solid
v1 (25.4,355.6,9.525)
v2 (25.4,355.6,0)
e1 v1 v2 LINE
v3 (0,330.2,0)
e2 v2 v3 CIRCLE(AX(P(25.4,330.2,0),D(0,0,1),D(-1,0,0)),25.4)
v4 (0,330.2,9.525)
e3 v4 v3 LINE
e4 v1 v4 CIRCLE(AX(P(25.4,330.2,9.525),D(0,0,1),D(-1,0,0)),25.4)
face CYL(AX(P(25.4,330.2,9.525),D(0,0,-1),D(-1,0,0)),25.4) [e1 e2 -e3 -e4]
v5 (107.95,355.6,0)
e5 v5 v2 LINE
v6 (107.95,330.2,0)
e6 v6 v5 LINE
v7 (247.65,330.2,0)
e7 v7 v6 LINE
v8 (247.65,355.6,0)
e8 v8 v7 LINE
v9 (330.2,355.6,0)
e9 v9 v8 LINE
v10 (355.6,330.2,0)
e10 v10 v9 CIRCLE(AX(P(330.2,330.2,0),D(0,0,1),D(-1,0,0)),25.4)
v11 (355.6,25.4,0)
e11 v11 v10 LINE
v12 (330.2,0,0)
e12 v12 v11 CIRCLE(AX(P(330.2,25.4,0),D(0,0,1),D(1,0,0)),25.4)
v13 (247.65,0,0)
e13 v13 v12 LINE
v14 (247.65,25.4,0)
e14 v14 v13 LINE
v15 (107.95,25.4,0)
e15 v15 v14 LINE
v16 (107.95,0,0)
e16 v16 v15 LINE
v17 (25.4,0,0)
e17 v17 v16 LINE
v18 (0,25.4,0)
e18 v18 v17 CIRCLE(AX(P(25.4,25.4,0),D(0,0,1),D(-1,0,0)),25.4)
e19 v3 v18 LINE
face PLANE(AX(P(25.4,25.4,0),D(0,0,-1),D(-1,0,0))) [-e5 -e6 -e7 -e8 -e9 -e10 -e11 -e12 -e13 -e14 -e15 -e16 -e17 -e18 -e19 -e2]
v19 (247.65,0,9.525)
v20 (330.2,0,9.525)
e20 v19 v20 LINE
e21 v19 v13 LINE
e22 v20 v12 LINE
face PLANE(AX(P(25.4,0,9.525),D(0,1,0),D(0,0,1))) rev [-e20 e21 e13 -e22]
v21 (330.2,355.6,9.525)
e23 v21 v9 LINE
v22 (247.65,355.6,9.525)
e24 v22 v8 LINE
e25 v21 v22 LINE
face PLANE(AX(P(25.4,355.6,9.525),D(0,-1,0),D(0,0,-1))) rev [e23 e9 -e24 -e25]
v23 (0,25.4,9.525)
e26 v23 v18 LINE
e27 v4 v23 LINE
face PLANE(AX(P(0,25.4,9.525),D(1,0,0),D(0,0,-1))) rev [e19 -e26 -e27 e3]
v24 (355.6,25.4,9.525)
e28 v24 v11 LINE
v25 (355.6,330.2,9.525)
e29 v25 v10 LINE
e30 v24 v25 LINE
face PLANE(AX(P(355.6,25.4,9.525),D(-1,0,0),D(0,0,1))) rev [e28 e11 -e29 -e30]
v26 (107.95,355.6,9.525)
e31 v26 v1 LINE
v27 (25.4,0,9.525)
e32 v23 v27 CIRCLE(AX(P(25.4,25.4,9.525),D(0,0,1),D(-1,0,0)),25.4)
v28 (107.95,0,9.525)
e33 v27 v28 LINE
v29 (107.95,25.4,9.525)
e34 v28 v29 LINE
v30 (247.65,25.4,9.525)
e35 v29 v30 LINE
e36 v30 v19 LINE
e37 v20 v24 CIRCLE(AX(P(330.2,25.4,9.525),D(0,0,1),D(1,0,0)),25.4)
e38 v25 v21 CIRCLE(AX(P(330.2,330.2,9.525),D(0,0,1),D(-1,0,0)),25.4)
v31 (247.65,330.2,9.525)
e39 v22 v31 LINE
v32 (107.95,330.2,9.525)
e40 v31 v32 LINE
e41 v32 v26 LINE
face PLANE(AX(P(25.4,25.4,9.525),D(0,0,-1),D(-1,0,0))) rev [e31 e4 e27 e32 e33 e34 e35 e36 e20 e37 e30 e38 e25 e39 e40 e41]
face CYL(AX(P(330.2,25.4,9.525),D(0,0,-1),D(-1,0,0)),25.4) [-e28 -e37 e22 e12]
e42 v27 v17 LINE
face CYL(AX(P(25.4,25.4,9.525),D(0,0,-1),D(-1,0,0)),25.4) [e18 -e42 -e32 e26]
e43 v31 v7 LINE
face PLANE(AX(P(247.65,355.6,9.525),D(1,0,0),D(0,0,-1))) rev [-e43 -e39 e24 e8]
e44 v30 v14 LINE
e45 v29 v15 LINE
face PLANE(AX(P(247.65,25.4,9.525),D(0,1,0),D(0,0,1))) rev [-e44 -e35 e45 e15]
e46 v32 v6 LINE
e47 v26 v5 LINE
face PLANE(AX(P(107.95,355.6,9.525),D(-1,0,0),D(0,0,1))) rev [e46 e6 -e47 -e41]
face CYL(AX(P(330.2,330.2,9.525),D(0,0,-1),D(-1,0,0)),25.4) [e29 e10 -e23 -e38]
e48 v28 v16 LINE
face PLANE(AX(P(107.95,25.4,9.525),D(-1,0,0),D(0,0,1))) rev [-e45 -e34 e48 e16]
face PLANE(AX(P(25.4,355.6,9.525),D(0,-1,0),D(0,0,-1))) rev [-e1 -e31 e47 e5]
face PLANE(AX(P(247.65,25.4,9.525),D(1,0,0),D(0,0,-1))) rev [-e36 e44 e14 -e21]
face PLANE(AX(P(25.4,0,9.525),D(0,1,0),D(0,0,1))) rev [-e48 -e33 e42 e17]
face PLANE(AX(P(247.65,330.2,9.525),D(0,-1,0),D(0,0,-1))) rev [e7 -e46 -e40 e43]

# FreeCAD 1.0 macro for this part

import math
import FreeCAD as App
import Part
import Sketcher
from FreeCAD import Vector
Q = App.Units.Quantity

doc = App.newDocument("Part")
params = doc.addObject("Spreadsheet::Sheet", "Params")
for row, (alias, value) in enumerate([
    ("sketch1_radius", "1 in"),
    ("sketch1_width", "12 in"),
    ("pad1_length", "0.375 in"),
    ("sketch2_height", "1 in"),
    ("sketch2_width", "5.5 in"),
], start=1):
    params.set(f"A{row}", alias)
    params.set(f"B{row}", "=" + value)
    params.setAlias(f"B{row}", alias)

body = doc.addObject("PartDesign::Body", "Body")

# Sketch on XY plane
sketch1 = body.newObject("Sketcher::SketchObject", "Sketch")
sketch1.AttachmentSupport = (doc.getObject("XY_Plane"), [""])
sketch1.MapMode = "FlatFace"
sketch1.addGeometry([
    Part.LineSegment(Vector(25, 0, 0), Vector(330, 0, 0)),  # 0
    Part.ArcOfCircle(Part.Circle(Vector(330, 25, 0), Vector(0, 0, 1), 25), math.radians(-90), math.radians(0)),  # 1
    Part.LineSegment(Vector(356, 25, 0), Vector(356, 330, 0)),  # 2
    Part.ArcOfCircle(Part.Circle(Vector(330, 330, 0), Vector(0, 0, 1), 25), math.radians(0), math.radians(90)),  # 3
    Part.LineSegment(Vector(330, 356, 0), Vector(25, 356, 0)),  # 4
    Part.ArcOfCircle(Part.Circle(Vector(25, 330, 0), Vector(0, 0, 1), 25), math.radians(90), math.radians(180)),  # 5
    Part.LineSegment(Vector(0, 330, 0), Vector(0, 25, 0)),  # 6
    Part.ArcOfCircle(Part.Circle(Vector(25, 25, 0), Vector(0, 0, 1), 25), math.radians(180), math.radians(270)),  # 7
], False)
sketch1.addConstraint([
    Sketcher.Constraint("Tangent", 0, 2, 1, 1),
    Sketcher.Constraint("Tangent", 1, 2, 2, 1),
    Sketcher.Constraint("Tangent", 2, 2, 3, 1),
    Sketcher.Constraint("Tangent", 3, 2, 4, 1),
    Sketcher.Constraint("Tangent", 4, 2, 5, 1),
    Sketcher.Constraint("Tangent", 5, 2, 6, 1),
    Sketcher.Constraint("Tangent", 6, 2, 7, 1),
    Sketcher.Constraint("Tangent", 7, 2, 0, 1),
    Sketcher.Constraint("Horizontal", 0),
    Sketcher.Constraint("Vertical", 2),
    Sketcher.Constraint("Horizontal", 4),
    Sketcher.Constraint("Vertical", 6),
    Sketcher.Constraint("Equal", 1, 3),
    Sketcher.Constraint("Equal", 3, 5),
    Sketcher.Constraint("Equal", 5, 7),
    Sketcher.Constraint("PointOnObject", 0, 2, -1),
    Sketcher.Constraint("PointOnObject", 5, 2, -2),
    Sketcher.Constraint("Equal", 4, 2),
    Sketcher.Constraint("Radius", 1, Q("1 in")),
    Sketcher.Constraint("DistanceX", 0, 1, 0, 2, Q("12 in")),
])
sketch1.setExpression("Constraints[18]", "Params.sketch1_radius")
sketch1.setExpression("Constraints[19]", "Params.sketch1_width")
pad1 = body.newObject("PartDesign::Pad", "Pad")
pad1.Profile = sketch1
pad1.setExpression("Length", "Params.pad1_length")

# Sketch on XY plane
sketch2 = body.newObject("Sketcher::SketchObject", "Sketch001")
sketch2.AttachmentSupport = (doc.getObject("XY_Plane"), [""])
sketch2.MapMode = "FlatFace"
sketch2.addGeometry([
    Part.LineSegment(Vector(248, 356, 0), Vector(248, 330, 0)),  # 0
    Part.LineSegment(Vector(248, 330, 0), Vector(108, 330, 0)),  # 1
    Part.LineSegment(Vector(108, 330, 0), Vector(108, 356, 0)),  # 2
    Part.LineSegment(Vector(108, 356, 0), Vector(248, 356, 0)),  # 3
    Part.LineSegment(Vector(248, 25, 0), Vector(248, 0, 0)),  # 4
    Part.LineSegment(Vector(248, 0, 0), Vector(108, 0, 0)),  # 5
    Part.LineSegment(Vector(108, 0, 0), Vector(108, 25, 0)),  # 6
    Part.LineSegment(Vector(108, 25, 0), Vector(248, 25, 0)),  # 7
], False)
sketch2.addConstraint([
    Sketcher.Constraint("Coincident", 0, 2, 1, 1),
    Sketcher.Constraint("Coincident", 1, 2, 2, 1),
    Sketcher.Constraint("Coincident", 2, 2, 3, 1),
    Sketcher.Constraint("Coincident", 3, 2, 0, 1),
    Sketcher.Constraint("Coincident", 4, 2, 5, 1),
    Sketcher.Constraint("Coincident", 5, 2, 6, 1),
    Sketcher.Constraint("Coincident", 6, 2, 7, 1),
    Sketcher.Constraint("Coincident", 7, 2, 4, 1),
    Sketcher.Constraint("Vertical", 0),
    Sketcher.Constraint("Horizontal", 1),
    Sketcher.Constraint("Vertical", 2),
    Sketcher.Constraint("Horizontal", 3),
    Sketcher.Constraint("Vertical", 4),
    Sketcher.Constraint("Horizontal", 5),
    Sketcher.Constraint("Vertical", 6),
    Sketcher.Constraint("Horizontal", 7),
    Sketcher.Constraint("PointOnObject", 4, 2, -1),
    Sketcher.Constraint("Vertical", 3, 2, 4, 2),
    Sketcher.Constraint("Vertical", 2, 2, 5, 2),
    Sketcher.Constraint("Equal", 2, 4),
    Sketcher.Constraint("DistanceY", 0, 2, 0, 1, Q("1 in")),
    Sketcher.Constraint("DistanceX", 1, 2, 1, 1, Q("5.5 in")),
    Sketcher.Constraint("DistanceY", -1, 1, 0, 2, Q("13 in")),
    Sketcher.Constraint("DistanceX", -1, 1, 0, 2, Q("9.75 in")),
])
sketch2.setExpression("Constraints[20]", "Params.sketch2_height")
sketch2.setExpression("Constraints[21]", "Params.sketch2_width")
pocket1 = body.newObject("PartDesign::Pocket", "Pocket")
pocket1.Profile = sketch2
pocket1.Type = "ThroughAll"
pocket1.Reversed = True

doc.recompute()
